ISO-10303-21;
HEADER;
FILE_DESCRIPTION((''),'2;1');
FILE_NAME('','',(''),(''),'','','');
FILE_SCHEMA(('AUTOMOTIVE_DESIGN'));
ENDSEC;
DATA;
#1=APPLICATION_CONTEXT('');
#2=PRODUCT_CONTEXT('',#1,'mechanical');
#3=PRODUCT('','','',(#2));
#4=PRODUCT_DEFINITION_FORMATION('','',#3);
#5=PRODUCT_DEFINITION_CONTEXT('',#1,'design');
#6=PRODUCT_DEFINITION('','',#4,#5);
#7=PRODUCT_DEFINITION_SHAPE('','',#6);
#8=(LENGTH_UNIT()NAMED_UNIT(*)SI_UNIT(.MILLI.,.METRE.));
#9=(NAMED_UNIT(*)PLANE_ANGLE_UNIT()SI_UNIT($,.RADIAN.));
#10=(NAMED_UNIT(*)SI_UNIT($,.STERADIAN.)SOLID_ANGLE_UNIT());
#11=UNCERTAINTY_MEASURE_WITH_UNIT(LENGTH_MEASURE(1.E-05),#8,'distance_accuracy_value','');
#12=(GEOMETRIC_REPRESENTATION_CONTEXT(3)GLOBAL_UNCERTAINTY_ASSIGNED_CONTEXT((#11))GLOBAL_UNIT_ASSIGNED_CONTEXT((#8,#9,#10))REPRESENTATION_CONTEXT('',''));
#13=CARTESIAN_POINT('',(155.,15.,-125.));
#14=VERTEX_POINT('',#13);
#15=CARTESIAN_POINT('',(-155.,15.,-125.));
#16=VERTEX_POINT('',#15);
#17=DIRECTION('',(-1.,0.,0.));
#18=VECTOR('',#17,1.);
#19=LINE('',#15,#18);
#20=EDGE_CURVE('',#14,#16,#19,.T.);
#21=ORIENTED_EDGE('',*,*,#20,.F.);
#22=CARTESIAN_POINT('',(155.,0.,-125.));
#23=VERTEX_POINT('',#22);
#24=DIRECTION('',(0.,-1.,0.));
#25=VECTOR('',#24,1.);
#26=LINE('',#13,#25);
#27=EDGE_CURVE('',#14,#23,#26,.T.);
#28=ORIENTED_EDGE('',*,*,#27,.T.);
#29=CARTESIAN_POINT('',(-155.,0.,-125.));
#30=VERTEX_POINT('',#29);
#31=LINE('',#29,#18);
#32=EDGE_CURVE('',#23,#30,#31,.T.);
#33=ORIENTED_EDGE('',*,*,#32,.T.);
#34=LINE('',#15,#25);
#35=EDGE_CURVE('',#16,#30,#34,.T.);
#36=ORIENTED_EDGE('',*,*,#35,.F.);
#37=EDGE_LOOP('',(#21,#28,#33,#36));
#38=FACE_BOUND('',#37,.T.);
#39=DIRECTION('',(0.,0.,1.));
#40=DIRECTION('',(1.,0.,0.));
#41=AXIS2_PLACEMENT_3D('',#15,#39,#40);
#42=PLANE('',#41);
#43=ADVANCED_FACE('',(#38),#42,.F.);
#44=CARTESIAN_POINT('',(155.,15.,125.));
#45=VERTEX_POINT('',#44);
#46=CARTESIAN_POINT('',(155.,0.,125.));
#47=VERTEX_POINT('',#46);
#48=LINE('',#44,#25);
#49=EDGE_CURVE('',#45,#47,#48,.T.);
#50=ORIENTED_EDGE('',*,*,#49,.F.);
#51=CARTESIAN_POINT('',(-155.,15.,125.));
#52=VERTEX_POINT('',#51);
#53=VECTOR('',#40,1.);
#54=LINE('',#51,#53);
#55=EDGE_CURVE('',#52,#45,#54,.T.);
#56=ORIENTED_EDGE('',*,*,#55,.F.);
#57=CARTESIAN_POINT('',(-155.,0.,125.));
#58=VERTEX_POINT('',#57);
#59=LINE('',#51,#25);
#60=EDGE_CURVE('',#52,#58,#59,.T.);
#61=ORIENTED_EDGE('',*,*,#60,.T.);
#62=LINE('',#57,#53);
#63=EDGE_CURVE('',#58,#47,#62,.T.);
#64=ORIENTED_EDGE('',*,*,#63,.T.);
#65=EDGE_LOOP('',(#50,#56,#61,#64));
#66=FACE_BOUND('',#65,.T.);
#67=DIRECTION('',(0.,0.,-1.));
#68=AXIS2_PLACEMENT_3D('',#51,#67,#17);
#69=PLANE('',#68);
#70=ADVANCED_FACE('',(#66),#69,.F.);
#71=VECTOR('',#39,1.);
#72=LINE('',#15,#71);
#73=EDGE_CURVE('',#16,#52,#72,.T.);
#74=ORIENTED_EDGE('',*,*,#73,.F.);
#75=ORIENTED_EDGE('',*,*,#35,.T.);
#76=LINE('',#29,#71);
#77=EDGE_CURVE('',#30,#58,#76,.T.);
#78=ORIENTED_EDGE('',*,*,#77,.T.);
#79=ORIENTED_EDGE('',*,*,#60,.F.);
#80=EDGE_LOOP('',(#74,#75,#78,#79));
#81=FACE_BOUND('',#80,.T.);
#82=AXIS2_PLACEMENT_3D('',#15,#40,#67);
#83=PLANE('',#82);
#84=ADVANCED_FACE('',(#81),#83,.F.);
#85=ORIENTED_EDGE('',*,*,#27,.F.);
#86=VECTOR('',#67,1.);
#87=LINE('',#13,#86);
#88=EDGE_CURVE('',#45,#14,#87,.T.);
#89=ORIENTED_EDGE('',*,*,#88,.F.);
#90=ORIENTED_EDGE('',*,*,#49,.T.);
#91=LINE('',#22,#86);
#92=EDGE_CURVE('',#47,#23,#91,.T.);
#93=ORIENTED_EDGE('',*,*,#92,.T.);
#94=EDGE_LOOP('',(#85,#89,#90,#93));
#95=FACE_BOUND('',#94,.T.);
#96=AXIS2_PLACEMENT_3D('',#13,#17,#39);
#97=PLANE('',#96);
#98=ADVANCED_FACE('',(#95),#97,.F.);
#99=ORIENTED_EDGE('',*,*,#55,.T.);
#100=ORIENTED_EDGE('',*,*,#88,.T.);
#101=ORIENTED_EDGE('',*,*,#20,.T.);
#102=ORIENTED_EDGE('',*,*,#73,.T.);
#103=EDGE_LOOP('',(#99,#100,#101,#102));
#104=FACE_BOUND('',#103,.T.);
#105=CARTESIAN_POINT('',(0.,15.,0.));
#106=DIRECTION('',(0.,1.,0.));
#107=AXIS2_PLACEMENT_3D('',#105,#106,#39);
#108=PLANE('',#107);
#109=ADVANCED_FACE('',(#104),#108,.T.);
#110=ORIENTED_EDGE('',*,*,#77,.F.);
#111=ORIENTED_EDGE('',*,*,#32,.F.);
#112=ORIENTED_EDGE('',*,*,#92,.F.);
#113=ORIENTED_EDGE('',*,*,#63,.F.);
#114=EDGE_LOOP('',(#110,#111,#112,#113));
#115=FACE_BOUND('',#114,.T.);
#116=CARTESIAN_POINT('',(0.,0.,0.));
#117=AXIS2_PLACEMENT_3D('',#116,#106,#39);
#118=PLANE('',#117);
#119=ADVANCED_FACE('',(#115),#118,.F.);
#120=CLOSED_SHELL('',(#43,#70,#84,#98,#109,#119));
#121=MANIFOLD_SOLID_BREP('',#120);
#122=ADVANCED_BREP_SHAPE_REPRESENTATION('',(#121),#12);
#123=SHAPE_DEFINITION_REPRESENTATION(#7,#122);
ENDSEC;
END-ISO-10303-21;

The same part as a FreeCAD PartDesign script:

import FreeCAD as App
import Part
import Sketcher
from FreeCAD import Vector


def add_polygon(sketch, points):
    """Adds a closed chain of lines whose ends are joined by coincident constraints."""
    first, n = sketch.GeometryCount, len(points)
    for a, b in zip(points, points[1:] + points[:1]):
        sketch.addGeometry(Part.LineSegment(App.Vector(*a, 0), App.Vector(*b, 0)), False)
    for i in range(n):
        sketch.addConstraint(Sketcher.Constraint("Coincident", first + i, 2, first + (i + 1) % n, 1))

doc = App.newDocument("Part")
body = doc.addObject("PartDesign::Body", "Body")

# Sketch on XZ plane
sketch1 = doc.addObject("Sketcher::SketchObject", "Sketch")
body.addObject(sketch1)
sketch1.AttachmentSupport = (doc.XZ_Plane, [""])
sketch1.MapMode = "FlatFace"
add_polygon(sketch1, [(-155, -125), (-155, 125), (155, 125), (155, -125)])  # lines 0-3
sketch1.addConstraint([
    Sketcher.Constraint("Vertical", 0),
    Sketcher.Constraint("Horizontal", 1),
    Sketcher.Constraint("Vertical", 2),
    Sketcher.Constraint("Horizontal", 3),
    Sketcher.Constraint("Symmetric", 0, 2, 2, 2, -1, 1),
    Sketcher.Constraint("DistanceX", 1, 1, 1, 2, 310.0),
    Sketcher.Constraint("DistanceY", 0, 1, 0, 2, 250.0),
])
pad1 = doc.addObject("PartDesign::Pad", "Pad")
body.addObject(pad1)
pad1.Profile = sketch1
pad1.Length = 15
pad1.Reversed = True

doc.recompute()
